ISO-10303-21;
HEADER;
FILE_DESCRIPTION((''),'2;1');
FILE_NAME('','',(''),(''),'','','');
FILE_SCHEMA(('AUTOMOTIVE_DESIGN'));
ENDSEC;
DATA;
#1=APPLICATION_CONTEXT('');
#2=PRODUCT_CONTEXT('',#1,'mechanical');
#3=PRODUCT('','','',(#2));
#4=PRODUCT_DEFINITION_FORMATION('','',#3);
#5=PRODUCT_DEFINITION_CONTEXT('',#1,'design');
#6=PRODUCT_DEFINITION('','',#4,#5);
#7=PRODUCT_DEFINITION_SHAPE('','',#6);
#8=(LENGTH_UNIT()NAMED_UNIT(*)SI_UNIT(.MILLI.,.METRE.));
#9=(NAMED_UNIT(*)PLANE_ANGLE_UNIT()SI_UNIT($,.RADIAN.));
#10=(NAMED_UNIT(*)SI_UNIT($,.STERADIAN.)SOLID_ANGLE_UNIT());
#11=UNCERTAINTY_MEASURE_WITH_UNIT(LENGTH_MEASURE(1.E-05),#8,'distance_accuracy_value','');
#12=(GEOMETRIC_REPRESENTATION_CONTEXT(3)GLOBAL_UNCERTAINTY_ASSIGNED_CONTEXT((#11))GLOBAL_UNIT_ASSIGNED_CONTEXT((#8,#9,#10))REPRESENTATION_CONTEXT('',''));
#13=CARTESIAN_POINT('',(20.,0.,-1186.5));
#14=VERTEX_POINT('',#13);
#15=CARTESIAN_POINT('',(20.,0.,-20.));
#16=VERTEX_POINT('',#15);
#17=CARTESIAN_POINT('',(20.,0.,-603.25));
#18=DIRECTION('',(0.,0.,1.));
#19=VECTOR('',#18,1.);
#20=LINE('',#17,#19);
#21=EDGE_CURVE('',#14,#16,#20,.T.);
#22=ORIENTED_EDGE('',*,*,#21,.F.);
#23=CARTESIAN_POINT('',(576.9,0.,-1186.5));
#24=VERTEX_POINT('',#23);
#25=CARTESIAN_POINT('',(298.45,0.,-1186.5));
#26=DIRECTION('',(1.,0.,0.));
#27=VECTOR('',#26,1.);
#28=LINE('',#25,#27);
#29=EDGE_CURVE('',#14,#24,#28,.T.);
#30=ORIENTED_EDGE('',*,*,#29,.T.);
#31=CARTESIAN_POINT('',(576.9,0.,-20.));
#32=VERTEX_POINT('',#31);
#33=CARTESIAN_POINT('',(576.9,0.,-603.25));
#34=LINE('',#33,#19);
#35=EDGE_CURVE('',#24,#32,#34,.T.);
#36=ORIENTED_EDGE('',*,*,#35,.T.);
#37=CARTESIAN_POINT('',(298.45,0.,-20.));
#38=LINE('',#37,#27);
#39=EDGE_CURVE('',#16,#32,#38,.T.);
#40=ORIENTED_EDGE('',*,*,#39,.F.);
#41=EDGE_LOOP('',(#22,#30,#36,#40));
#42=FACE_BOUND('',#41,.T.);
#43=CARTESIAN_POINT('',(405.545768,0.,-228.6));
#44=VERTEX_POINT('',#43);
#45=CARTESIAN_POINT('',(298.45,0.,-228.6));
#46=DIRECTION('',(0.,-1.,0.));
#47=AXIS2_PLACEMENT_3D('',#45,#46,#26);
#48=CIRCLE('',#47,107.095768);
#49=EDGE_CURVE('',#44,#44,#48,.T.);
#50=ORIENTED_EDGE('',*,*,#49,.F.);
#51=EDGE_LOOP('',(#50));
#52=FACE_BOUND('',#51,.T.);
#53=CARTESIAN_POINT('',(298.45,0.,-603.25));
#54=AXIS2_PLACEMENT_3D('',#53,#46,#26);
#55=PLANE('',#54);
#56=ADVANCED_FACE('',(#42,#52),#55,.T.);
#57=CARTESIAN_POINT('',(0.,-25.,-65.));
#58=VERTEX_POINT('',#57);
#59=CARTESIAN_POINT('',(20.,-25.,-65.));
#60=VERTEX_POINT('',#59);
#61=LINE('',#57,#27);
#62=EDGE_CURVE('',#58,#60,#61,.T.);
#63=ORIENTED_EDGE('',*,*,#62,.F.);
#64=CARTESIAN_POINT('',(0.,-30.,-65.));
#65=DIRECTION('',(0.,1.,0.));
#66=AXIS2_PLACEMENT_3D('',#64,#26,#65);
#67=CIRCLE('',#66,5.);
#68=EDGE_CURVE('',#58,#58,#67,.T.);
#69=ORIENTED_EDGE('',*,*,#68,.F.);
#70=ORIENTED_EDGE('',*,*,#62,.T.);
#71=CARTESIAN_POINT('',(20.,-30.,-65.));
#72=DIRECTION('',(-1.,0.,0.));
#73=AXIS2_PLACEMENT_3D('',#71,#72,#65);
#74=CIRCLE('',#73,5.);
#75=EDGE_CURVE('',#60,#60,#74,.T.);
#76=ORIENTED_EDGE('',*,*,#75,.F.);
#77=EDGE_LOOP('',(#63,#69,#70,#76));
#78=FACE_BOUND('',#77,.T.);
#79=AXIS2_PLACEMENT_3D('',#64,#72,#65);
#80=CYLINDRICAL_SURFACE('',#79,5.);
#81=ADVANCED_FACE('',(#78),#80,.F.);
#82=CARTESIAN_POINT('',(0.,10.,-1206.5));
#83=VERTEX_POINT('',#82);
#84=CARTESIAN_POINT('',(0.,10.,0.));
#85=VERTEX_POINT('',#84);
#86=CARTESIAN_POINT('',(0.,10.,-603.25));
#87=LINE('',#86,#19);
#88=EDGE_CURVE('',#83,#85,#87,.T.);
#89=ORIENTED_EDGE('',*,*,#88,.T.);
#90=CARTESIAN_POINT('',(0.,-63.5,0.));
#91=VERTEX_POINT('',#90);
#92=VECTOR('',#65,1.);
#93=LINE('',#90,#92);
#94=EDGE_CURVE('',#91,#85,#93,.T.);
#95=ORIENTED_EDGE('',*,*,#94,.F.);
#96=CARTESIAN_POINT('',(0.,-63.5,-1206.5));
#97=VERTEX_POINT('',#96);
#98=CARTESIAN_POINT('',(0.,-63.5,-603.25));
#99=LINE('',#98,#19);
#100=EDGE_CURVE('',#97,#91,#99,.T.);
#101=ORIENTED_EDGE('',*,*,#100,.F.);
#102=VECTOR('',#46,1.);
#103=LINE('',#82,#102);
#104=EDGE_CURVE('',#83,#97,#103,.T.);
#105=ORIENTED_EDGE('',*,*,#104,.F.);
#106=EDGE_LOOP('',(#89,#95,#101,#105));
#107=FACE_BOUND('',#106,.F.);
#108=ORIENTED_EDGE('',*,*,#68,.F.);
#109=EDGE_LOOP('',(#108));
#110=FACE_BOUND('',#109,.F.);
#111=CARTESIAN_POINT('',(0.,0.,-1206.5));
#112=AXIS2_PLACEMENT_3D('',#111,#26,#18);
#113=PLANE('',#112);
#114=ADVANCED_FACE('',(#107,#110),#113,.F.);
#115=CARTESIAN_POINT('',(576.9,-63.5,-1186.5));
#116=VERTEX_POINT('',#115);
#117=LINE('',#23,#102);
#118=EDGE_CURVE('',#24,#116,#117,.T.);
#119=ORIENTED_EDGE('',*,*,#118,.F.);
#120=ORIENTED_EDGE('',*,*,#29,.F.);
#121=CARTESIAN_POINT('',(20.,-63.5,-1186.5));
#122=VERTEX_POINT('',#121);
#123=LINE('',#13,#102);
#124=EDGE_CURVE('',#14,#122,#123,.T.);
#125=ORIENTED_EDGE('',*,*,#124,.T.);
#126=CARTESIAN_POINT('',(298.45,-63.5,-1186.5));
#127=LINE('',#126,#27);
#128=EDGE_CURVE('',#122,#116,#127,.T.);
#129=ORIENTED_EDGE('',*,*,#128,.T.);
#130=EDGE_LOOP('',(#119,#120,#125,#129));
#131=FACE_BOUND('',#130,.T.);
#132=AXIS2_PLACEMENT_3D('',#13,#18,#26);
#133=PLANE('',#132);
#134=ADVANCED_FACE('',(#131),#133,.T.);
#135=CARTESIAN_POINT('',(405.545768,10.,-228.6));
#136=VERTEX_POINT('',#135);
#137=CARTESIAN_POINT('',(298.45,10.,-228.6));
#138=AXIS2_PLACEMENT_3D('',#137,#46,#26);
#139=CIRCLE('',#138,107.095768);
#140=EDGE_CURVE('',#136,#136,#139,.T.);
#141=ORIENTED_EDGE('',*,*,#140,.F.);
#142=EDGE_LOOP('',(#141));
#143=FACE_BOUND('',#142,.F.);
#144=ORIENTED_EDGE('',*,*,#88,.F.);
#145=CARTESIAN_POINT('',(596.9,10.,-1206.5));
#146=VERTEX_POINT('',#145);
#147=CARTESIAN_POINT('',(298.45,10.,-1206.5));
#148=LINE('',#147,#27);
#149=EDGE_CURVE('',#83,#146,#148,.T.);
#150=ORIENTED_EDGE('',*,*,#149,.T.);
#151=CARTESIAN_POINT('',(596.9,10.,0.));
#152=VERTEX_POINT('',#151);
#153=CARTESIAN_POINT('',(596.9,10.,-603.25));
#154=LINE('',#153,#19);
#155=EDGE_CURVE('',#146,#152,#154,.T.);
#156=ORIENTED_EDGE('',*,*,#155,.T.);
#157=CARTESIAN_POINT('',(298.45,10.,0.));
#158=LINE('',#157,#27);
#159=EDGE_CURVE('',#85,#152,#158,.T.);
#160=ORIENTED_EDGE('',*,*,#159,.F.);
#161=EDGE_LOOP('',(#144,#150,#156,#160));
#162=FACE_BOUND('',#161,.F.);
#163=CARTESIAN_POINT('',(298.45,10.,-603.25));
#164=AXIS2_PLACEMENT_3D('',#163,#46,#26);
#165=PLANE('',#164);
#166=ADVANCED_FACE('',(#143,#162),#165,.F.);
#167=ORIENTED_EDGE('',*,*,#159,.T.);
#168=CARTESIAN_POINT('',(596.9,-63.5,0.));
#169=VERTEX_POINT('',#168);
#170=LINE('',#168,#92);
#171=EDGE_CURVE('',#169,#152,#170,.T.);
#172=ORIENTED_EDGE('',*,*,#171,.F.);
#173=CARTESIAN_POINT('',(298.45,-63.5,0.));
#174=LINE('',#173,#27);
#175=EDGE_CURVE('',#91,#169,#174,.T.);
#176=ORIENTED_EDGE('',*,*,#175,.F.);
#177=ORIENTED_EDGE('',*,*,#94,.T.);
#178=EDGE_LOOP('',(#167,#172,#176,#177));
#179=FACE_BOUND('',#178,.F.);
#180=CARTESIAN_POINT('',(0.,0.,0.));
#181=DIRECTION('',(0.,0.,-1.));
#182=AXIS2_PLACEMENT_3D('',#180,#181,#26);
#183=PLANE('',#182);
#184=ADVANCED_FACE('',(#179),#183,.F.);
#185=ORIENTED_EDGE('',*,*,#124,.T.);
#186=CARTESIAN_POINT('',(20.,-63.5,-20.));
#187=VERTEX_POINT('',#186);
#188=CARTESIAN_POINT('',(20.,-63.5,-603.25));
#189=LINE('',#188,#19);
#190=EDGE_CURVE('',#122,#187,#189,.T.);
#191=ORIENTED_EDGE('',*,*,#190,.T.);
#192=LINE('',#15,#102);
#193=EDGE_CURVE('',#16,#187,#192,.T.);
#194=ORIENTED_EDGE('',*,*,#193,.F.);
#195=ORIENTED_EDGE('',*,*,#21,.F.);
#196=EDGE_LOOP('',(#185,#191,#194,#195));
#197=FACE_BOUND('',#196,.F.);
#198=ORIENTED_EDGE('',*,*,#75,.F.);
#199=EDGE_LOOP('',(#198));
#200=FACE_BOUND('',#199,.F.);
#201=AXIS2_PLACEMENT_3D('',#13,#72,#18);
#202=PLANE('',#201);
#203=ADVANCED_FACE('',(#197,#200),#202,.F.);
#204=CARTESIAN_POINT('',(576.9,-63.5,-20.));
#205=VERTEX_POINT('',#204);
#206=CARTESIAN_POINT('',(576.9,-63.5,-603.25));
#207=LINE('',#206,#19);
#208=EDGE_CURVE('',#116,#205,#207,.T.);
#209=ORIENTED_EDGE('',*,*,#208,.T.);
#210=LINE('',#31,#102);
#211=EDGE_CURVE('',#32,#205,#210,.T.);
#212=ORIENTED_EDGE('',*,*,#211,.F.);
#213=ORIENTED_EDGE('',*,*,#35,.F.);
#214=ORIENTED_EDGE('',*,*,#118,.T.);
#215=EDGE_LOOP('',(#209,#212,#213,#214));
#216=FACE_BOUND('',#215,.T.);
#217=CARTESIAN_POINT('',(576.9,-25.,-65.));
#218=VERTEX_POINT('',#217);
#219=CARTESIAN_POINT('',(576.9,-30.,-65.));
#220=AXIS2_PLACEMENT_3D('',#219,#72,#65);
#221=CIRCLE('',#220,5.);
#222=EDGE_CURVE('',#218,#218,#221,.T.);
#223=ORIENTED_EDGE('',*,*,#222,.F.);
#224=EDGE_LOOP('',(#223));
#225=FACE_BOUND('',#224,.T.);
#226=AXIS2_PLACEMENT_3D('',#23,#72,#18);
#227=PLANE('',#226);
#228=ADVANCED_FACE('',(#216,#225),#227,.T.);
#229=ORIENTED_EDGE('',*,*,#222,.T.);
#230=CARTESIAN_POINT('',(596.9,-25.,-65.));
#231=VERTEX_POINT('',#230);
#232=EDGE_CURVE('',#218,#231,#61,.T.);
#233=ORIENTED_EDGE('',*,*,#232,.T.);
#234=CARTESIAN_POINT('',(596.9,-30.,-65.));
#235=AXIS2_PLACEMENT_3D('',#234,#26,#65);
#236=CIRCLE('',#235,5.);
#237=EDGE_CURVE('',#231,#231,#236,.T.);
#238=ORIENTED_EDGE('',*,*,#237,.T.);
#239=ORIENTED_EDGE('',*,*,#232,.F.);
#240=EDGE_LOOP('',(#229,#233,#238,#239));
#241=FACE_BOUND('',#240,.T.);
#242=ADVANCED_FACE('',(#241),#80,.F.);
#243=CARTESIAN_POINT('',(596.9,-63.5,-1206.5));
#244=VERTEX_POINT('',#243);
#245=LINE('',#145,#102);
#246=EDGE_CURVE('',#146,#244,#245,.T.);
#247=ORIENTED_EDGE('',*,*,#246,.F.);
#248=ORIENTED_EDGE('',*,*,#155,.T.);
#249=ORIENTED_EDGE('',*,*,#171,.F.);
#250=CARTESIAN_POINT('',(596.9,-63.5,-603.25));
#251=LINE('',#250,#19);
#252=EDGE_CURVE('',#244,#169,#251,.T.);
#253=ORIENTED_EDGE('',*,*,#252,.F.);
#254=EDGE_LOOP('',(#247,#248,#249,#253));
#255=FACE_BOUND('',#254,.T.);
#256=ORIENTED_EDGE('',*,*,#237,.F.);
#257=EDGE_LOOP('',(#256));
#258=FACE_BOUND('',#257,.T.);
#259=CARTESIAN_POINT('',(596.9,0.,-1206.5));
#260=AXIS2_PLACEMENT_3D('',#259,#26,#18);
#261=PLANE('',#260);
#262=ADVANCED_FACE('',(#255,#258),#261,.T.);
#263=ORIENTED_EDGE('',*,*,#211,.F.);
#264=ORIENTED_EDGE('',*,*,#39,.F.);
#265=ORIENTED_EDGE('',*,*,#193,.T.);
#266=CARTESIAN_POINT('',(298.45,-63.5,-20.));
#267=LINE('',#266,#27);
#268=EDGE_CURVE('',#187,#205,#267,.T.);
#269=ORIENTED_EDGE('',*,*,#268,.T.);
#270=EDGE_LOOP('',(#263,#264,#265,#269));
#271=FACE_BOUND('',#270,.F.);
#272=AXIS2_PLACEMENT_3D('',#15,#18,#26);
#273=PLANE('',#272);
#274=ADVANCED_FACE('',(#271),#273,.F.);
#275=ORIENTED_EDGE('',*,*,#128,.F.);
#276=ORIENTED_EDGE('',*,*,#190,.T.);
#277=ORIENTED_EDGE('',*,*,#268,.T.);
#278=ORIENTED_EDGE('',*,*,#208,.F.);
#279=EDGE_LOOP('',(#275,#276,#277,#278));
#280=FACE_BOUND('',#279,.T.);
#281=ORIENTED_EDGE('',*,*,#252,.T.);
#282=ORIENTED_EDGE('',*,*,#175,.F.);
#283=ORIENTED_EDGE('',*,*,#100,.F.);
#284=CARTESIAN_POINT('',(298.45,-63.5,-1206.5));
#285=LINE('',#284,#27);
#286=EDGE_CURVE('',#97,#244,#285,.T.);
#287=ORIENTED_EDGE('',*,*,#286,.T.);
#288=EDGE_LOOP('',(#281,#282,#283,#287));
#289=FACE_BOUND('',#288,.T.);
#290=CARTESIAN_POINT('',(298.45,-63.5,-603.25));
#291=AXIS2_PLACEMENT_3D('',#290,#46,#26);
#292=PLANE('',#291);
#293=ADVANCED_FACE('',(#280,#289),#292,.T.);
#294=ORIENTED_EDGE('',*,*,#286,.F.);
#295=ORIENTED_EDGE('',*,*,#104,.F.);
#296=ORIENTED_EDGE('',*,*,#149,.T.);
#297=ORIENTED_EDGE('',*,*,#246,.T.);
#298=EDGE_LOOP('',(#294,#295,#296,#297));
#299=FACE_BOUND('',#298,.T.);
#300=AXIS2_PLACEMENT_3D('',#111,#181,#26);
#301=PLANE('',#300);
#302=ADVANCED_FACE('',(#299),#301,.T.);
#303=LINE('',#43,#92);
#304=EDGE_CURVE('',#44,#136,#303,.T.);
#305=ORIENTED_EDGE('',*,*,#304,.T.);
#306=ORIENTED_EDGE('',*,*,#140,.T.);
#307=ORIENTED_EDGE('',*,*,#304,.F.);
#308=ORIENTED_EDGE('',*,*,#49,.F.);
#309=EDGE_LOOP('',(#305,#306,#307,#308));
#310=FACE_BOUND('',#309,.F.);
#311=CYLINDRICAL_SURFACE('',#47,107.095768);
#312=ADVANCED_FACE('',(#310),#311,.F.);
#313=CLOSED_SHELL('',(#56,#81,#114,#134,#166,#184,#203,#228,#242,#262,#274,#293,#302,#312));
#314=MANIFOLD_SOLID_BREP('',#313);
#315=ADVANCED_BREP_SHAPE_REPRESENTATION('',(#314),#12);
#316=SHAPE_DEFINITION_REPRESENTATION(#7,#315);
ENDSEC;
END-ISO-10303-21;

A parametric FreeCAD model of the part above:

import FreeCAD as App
import Part
import Sketcher
from FreeCAD import Vector
Q = App.Units.Quantity


def add_polygon(sketch, points):
    """Adds a closed chain of lines whose ends are joined by coincident constraints."""
    first, n = sketch.GeometryCount, len(points)
    for a, b in zip(points, points[1:] + points[:1]):
        sketch.addGeometry(Part.LineSegment(App.Vector(*a, 0), App.Vector(*b, 0)), False)
    for i in range(n):
        sketch.addConstraint(Sketcher.Constraint("Coincident", first + i, 2, first + (i + 1) % n, 1))

doc = App.newDocument("Part")
body = doc.addObject("PartDesign::Body", "Body")

sketch1 = body.newObject("Sketcher::SketchObject", "Sketch")
sketch1.AttachmentSupport = (doc.getObject("XZ_Plane"), [""])
sketch1.MapMode = "FlatFace"
add_polygon(sketch1, [(0, 0), (0, -1206.5), (596.9, -1206.5), (596.9, 0)])
add_polygon(sketch1, [(576.9, -1186.5), (20, -1186.5), (20, -20), (576.9, -20)])
sketch1.addConstraint(Sketcher.Constraint("Vertical", 0))
sketch1.addConstraint(Sketcher.Constraint("Horizontal", 1))
sketch1.addConstraint(Sketcher.Constraint("Vertical", 2))
sketch1.addConstraint(Sketcher.Constraint("Horizontal", 3))
sketch1.addConstraint(Sketcher.Constraint("Horizontal", 4))
sketch1.addConstraint(Sketcher.Constraint("Vertical", 5))
sketch1.addConstraint(Sketcher.Constraint("Horizontal", 6))
sketch1.addConstraint(Sketcher.Constraint("Vertical", 7))
sketch1.addConstraint(Sketcher.Constraint("Coincident", 3, 2, -1, 1))
sketch1.addConstraint(Sketcher.Constraint("DistanceX", 1, 1, 1, 2, Q("596.9 mm")))
sketch1.addConstraint(Sketcher.Constraint("DistanceX", 4, 2, 4, 1, Q("556.9 mm")))
sketch1.addConstraint(Sketcher.Constraint("DistanceY", 0, 2, 0, 1, Q("1206.5 mm")))
sketch1.addConstraint(Sketcher.Constraint("DistanceY", 5, 1, 5, 2, Q("1166.5 mm")))
sketch1.addConstraint(Sketcher.Constraint("DistanceX", -1, 1, 4, 2, Q("20 mm")))
sketch1.addConstraint(Sketcher.Constraint("DistanceY", 5, 2, -1, 1, Q("20 mm")))
pad1 = body.newObject("PartDesign::Pad", "Pad")
pad1.Profile = sketch1
pad1.Length = 63.5

sketch2 = body.newObject("Sketcher::SketchObject", "Sketch001")
sketch2.AttachmentSupport = (doc.getObject("XZ_Plane"), [""])
sketch2.MapMode = "FlatFace"
add_polygon(sketch2, [(0, 0), (0, -1206.5), (596.9, -1206.5), (596.9, 0)])
sketch2.addGeometry(Part.Circle(Vector(298.45, -228.6, 0), Vector(0, 0, 1), 107.095768), False)
sketch2.addConstraint(Sketcher.Constraint("Vertical", 0))
sketch2.addConstraint(Sketcher.Constraint("Horizontal", 1))
sketch2.addConstraint(Sketcher.Constraint("Vertical", 2))
sketch2.addConstraint(Sketcher.Constraint("Horizontal", 3))
sketch2.addConstraint(Sketcher.Constraint("Coincident", 3, 2, -1, 1))
sketch2.addConstraint(Sketcher.Constraint("DistanceX", 1, 1, 1, 2, Q("596.9 mm")))
sketch2.addConstraint(Sketcher.Constraint("DistanceY", 0, 2, 0, 1, Q("1206.5 mm")))
sketch2.addConstraint(Sketcher.Constraint("DistanceY", 4, 3, -1, 1, Q("228.6 mm")))
sketch2.addConstraint(Sketcher.Constraint("DistanceX", -1, 1, 4, 3, Q("298.45 mm")))
sketch2.addConstraint(Sketcher.Constraint("Diameter", 4, Q("214.191536 mm")))
pad2 = body.newObject("PartDesign::Pad", "Pad001")
pad2.Profile = sketch2
pad2.Length = 10
pad2.Reversed = True

sketch3 = body.newObject("Sketcher::SketchObject", "Sketch002")
sketch3.AttachmentSupport = (doc.getObject("YZ_Plane"), [""])
sketch3.MapMode = "FlatFace"
sketch3.addGeometry(Part.Circle(Vector(-30, -65, 0), Vector(0, 0, 1), 5), False)
sketch3.addConstraint(Sketcher.Constraint("Diameter", 0, Q("10 mm")))
sketch3.addConstraint(Sketcher.Constraint("DistanceX", 0, 3, -1, 1, Q("30 mm")))
sketch3.addConstraint(Sketcher.Constraint("DistanceY", 0, 3, -1, 1, Q("65 mm")))
pocket1 = body.newObject("PartDesign::Pocket", "Pocket")
pocket1.Profile = sketch3
pocket1.Type = "ThroughAll"
pocket1.Reversed = True

doc.recompute()
